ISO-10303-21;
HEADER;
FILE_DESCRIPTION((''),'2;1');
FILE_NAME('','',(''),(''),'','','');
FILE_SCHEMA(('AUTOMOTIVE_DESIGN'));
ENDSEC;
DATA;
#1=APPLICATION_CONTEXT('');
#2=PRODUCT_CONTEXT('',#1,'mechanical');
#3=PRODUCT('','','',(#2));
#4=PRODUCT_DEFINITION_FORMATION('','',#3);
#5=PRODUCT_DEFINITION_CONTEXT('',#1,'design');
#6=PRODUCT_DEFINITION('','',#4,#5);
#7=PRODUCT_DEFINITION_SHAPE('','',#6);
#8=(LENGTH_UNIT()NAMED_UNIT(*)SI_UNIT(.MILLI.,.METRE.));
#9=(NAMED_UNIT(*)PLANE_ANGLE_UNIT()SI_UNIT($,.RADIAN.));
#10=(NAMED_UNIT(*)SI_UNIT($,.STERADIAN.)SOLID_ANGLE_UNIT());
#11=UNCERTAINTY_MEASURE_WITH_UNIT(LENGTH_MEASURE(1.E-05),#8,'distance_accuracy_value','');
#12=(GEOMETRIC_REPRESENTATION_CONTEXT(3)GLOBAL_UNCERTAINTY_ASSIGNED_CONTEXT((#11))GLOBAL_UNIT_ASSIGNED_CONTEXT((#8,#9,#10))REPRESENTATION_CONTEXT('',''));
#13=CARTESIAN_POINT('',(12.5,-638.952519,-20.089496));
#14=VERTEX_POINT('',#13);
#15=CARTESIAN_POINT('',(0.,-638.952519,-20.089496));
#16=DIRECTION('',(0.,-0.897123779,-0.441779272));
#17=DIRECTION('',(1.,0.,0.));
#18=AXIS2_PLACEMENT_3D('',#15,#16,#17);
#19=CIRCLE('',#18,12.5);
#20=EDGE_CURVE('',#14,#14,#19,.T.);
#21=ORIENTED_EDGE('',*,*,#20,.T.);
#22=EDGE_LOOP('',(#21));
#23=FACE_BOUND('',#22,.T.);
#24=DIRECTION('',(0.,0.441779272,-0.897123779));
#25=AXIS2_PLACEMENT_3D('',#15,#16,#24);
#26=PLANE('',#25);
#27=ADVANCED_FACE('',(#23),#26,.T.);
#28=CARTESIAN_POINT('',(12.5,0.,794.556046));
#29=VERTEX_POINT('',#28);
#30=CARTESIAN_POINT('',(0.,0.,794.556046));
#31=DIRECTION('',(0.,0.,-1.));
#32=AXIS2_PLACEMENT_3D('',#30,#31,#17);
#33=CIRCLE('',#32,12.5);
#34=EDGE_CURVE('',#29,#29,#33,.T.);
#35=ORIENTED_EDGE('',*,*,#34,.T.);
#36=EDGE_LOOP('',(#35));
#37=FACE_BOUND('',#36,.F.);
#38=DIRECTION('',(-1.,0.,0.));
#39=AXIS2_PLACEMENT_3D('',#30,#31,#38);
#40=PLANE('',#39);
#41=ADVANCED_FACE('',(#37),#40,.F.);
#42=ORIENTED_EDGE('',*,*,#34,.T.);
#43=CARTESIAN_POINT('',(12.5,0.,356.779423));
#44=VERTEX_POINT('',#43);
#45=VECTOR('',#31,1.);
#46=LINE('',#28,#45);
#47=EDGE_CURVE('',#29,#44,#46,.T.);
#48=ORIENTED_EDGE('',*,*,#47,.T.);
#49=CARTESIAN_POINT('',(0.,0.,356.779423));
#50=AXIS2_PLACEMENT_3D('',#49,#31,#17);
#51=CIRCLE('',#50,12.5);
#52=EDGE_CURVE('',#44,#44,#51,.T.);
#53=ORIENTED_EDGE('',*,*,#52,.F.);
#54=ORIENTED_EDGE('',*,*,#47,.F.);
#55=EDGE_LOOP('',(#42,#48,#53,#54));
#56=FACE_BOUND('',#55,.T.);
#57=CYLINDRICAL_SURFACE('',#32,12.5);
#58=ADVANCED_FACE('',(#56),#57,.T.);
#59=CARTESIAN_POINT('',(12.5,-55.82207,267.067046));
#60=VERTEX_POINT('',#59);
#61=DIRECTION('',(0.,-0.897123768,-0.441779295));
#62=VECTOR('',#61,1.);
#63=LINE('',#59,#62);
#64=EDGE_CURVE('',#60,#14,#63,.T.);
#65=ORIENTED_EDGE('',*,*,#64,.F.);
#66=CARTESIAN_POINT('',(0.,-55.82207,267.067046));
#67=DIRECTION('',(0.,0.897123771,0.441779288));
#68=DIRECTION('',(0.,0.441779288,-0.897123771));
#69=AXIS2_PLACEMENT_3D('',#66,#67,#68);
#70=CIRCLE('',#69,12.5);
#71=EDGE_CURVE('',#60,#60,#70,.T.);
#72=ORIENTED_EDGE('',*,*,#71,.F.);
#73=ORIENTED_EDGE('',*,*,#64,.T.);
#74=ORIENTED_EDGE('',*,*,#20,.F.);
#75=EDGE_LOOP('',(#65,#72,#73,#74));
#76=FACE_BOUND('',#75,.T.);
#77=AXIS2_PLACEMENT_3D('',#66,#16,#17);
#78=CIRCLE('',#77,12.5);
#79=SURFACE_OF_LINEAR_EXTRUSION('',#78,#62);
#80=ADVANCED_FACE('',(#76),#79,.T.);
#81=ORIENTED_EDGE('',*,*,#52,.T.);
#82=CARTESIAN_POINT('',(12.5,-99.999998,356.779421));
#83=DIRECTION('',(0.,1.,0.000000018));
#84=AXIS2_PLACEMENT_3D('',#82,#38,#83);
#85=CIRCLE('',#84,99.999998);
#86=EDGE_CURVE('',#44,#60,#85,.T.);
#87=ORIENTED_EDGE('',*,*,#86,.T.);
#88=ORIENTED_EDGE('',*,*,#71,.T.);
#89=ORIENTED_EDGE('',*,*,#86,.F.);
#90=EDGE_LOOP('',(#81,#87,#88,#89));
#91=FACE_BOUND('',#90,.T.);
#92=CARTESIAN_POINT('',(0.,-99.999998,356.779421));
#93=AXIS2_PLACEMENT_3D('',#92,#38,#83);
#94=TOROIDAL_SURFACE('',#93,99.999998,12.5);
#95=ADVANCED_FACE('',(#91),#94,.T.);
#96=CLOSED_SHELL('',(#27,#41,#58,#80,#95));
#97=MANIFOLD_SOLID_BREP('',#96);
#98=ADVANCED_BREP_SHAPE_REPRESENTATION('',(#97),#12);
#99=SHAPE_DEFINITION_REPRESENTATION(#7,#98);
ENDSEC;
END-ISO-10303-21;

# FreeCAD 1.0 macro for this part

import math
import FreeCAD as App
import Part
import Sketcher

V = App.Vector
Q = App.Units.Quantity

doc = App.newDocument("Part")
body = doc.addObject("PartDesign::Body", "Body")

# Sketch on XY plane
sketch1 = body.newObject("Sketcher::SketchObject", "Sketch")
sketch1.AttachmentSupport = (doc.getObject("XY_Plane"), [""])
sketch1.MapMode = "FlatFace"
sketch1.AttachmentOffset = App.Placement(V(0, 0, 794.556046), App.Rotation())
sketch1.addGeometry(Part.Circle(V(0, 0, 0), V(0, 0, 1), 12), False)
sketch1.addConstraint([
    Sketcher.Constraint("Coincident", 0, 3, -1, 1),
    Sketcher.Constraint("Diameter", 0, Q("25 mm")),
])

# Sketch on YZ plane
sketch2 = body.newObject("Sketcher::SketchObject", "Sketch001")
sketch2.AttachmentSupport = (doc.getObject("YZ_Plane"), [""])
sketch2.MapMode = "FlatFace"
sketch2.addGeometry([
    Part.LineSegment(V(0, 794.556046, 0), V(0, 356.779423, 0)),
    Part.ArcOfCircle(Part.Circle(V(-99.999998, 356.779421, 0), V(0, 0, 1), 99.999998), math.radians(-63.782538), math.radians(0.000001)),
    Part.LineSegment(V(-55.82207, 267.067046, 0), V(-638.952519, -20.089496, 0)),
], False)
sketch2.addConstraint([
    Sketcher.Constraint("Coincident", 0, 2, 1, 2),
    Sketcher.Constraint("Coincident", 1, 1, 2, 1),
    Sketcher.Constraint("Vertical", 0),
    Sketcher.Constraint("PointOnObject", 0, 1, -2),
    Sketcher.Constraint("Distance", 2, Q("650 mm")),
    Sketcher.Constraint("Radius", 1, Q("99.999998 mm")),
    Sketcher.Constraint("DistanceY", 1, 1, 0, 1, Q("527.489 mm")),
    Sketcher.Constraint("DistanceY", 0, 2, 0, 1, Q("437.776623 mm")),
    Sketcher.Constraint("DistanceY", -1, 1, 1, 3, Q("356.779421 mm")),
    Sketcher.Constraint("DistanceX", 1, 1, -1, 1, Q("55.82207 mm")),
    Sketcher.Constraint("DistanceX", 2, 2, -1, 1, Q("638.952519 mm")),
])
doc.recompute()

additivepipe = body.newObject("PartDesign::AdditivePipe", "AdditivePipe")
additivepipe.Profile = sketch1
additivepipe.Spine = (sketch2, ["Edge1", "Edge2", "Edge3"])

doc.recompute()
